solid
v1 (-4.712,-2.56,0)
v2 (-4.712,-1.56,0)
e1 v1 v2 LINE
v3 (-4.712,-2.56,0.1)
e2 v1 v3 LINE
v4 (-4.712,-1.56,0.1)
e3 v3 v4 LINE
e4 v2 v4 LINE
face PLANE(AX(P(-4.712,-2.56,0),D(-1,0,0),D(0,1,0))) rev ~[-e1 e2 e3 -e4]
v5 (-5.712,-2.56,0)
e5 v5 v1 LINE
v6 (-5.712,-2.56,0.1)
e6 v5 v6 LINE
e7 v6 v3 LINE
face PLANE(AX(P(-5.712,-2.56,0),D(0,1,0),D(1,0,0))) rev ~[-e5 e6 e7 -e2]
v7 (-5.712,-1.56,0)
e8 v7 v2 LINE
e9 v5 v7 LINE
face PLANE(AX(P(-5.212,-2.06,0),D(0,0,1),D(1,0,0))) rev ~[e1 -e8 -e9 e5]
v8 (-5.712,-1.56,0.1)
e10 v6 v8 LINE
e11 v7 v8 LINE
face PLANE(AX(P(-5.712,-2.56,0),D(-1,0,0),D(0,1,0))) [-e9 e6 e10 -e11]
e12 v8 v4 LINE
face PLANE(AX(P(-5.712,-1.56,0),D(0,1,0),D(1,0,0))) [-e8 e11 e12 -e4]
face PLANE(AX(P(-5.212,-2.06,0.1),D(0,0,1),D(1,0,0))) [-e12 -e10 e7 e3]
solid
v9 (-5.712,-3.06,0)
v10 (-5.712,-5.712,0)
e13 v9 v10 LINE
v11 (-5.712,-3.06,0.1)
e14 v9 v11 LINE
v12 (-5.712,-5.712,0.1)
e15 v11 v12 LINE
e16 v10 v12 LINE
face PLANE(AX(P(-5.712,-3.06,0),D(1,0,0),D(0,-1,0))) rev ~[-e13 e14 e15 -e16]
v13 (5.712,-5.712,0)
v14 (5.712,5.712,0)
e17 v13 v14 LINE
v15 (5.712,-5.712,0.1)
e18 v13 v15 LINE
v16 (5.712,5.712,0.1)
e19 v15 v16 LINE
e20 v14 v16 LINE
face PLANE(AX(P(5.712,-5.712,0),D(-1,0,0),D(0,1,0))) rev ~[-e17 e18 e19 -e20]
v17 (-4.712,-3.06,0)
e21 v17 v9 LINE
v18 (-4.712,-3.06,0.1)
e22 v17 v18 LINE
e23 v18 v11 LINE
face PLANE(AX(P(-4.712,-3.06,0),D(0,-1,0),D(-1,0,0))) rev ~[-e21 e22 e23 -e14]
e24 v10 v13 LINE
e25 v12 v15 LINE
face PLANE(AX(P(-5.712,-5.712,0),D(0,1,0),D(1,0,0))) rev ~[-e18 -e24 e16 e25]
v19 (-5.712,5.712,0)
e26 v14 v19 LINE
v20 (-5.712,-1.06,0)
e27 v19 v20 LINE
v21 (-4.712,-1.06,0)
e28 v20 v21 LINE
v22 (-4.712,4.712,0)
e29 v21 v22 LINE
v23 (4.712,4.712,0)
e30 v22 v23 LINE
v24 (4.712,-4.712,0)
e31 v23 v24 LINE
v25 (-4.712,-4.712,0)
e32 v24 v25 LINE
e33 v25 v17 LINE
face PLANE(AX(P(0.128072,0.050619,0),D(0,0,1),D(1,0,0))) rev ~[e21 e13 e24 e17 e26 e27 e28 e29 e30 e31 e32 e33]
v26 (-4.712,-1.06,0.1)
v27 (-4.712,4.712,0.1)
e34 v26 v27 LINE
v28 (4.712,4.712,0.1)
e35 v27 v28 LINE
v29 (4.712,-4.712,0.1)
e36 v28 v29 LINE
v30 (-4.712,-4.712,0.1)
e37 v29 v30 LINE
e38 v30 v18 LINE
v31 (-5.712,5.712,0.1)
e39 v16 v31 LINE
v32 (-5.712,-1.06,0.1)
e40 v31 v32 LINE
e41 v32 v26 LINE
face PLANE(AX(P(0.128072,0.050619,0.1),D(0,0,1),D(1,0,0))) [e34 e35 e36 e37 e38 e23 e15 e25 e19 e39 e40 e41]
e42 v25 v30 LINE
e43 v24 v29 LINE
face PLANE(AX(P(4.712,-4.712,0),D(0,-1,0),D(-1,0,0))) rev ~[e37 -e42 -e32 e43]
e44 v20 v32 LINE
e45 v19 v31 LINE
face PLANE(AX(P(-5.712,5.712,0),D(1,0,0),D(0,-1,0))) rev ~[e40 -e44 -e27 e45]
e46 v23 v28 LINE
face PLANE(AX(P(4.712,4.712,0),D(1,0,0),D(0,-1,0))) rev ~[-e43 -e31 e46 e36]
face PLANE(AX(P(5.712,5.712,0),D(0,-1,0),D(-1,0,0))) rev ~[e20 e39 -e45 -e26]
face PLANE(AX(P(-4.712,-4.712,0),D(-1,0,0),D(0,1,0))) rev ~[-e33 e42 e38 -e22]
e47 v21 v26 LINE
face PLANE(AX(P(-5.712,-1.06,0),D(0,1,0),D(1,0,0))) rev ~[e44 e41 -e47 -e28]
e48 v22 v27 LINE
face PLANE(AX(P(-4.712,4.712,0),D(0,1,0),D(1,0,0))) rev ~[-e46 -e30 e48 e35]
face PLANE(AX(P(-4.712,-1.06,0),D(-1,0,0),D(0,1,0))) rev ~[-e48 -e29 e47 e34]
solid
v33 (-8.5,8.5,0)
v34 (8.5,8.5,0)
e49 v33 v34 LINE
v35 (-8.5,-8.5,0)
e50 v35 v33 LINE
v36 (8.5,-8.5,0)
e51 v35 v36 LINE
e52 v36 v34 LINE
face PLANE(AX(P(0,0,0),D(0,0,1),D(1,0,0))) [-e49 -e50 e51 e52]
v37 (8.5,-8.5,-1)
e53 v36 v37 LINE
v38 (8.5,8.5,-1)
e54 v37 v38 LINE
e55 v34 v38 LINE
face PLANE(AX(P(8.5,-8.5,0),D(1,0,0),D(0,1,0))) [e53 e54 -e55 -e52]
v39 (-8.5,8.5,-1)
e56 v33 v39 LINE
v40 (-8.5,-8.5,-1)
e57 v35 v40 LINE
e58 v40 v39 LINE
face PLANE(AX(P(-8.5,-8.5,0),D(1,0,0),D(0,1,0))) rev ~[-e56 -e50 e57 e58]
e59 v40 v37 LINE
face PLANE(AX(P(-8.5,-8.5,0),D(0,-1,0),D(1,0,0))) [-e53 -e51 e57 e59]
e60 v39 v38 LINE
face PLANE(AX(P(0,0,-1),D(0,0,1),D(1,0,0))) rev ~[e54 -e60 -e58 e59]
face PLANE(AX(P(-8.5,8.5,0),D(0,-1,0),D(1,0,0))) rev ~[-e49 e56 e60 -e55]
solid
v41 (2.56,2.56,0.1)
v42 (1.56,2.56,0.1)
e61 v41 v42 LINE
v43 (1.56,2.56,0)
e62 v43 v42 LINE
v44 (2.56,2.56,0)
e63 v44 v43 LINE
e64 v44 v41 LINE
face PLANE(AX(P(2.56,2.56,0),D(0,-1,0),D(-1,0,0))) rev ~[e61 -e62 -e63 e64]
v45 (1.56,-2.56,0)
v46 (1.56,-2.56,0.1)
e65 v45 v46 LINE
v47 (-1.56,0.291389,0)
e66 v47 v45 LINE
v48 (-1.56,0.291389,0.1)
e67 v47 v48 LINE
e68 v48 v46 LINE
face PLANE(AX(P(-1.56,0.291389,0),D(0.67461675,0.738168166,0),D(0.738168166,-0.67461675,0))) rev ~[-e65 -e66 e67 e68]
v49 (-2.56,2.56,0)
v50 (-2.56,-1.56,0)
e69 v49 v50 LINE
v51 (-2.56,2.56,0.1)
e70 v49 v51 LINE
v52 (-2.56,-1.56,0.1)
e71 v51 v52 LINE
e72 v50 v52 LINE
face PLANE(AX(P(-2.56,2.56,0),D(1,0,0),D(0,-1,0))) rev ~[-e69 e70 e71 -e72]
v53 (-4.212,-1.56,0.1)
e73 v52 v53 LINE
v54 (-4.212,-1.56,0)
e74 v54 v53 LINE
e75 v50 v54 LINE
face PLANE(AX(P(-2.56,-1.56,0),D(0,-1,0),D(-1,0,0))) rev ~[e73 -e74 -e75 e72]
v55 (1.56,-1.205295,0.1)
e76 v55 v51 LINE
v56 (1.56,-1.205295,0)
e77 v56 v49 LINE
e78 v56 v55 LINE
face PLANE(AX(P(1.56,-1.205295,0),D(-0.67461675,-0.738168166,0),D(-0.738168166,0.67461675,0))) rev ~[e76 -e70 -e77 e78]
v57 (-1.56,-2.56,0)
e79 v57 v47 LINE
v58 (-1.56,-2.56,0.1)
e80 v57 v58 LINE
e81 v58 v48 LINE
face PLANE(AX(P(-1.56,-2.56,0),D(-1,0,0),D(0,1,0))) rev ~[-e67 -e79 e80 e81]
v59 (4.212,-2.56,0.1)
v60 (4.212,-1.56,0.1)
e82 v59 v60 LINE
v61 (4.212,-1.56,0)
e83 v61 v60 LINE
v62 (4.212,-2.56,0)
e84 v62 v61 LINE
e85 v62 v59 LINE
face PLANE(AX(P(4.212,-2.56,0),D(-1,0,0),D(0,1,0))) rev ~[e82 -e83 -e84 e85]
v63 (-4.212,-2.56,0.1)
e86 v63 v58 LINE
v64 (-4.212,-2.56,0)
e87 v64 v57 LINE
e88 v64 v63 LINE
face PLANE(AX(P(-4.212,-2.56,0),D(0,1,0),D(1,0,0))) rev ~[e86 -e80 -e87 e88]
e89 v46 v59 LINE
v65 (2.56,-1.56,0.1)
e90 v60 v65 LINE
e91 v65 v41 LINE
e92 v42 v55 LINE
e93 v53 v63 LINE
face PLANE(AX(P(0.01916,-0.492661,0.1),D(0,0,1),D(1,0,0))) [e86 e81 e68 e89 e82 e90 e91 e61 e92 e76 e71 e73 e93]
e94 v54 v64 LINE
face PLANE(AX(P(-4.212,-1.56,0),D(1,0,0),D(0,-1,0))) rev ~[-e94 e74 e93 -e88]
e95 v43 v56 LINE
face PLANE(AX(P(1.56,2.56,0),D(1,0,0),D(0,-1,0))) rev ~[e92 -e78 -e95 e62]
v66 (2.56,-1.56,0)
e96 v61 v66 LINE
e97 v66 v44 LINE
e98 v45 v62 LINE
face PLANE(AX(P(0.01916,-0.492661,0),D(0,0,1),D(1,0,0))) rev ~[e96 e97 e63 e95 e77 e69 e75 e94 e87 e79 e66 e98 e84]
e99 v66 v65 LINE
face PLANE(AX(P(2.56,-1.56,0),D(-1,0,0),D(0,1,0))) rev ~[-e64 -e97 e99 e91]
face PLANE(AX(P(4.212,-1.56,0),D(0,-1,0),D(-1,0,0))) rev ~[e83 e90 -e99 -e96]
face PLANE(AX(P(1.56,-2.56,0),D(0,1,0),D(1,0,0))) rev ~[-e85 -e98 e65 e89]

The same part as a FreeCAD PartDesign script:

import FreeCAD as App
import Part
import Sketcher
from FreeCAD import Vector
Q = App.Units.Quantity


def add_polygon(sketch, points):
    """Adds a closed chain of lines whose ends are joined by coincident constraints."""
    first, n = sketch.GeometryCount, len(points)
    for a, b in zip(points, points[1:] + points[:1]):
        sketch.addGeometry(Part.LineSegment(App.Vector(*a, 0), App.Vector(*b, 0)), False)
    for i in range(n):
        sketch.addConstraint(Sketcher.Constraint("Coincident", first + i, 2, first + (i + 1) % n, 1))

doc = App.newDocument("Part")
body = doc.addObject("PartDesign::Body", "Body")

# Sketch on XY plane
sketch1 = body.newObject("Sketcher::SketchObject", "Sketch")
sketch1.AttachmentSupport = (doc.getObject("XY_Plane"), [""])
sketch1.MapMode = "FlatFace"
add_polygon(sketch1, [(5.7, 5.7), (-5.7, 5.7), (-5.7, -1.1), (-4.7, -1.1), (-4.7, 4.7), (4.7, 4.7), (4.7, -4.7), (-4.7, -4.7), (-4.7, -3.1), (-5.7, -3.1), (-5.7, -5.7), (5.7, -5.7)])  # lines 0-11
sketch1.addConstraint(Sketcher.Constraint("Horizontal", 0))
sketch1.addConstraint(Sketcher.Constraint("Vertical", 1))
sketch1.addConstraint(Sketcher.Constraint("Horizontal", 2))
sketch1.addConstraint(Sketcher.Constraint("Vertical", 3))
sketch1.addConstraint(Sketcher.Constraint("Horizontal", 4))
sketch1.addConstraint(Sketcher.Constraint("Vertical", 5))
sketch1.addConstraint(Sketcher.Constraint("Horizontal", 6))
sketch1.addConstraint(Sketcher.Constraint("Vertical", 7))
sketch1.addConstraint(Sketcher.Constraint("Horizontal", 8))
sketch1.addConstraint(Sketcher.Constraint("Vertical", 9))
sketch1.addConstraint(Sketcher.Constraint("Horizontal", 10))
sketch1.addConstraint(Sketcher.Constraint("Vertical", 11))
sketch1.addConstraint(Sketcher.Constraint("Symmetric", 3, 2, 5, 2, -1, 1))
sketch1.addConstraint(Sketcher.Constraint("Symmetric", 0, 2, 10, 2, -1, 1))
sketch1.addConstraint(Sketcher.Constraint("Vertical", 3, 2, 6, 2))
sketch1.addConstraint(Sketcher.Constraint("Vertical", 1, 2, 8, 2))
sketch1.addConstraint(Sketcher.Constraint("Equal", 6, 5))
sketch1.addConstraint(Sketcher.Constraint("Equal", 10, 11))
sketch1.addConstraint(Sketcher.Constraint("DistanceX", 2, 1, 2, 2, Q("1 mm")))
sketch1.addConstraint(Sketcher.Constraint("DistanceY", 7, 2, 2, 2, Q("2 mm")))
sketch1.addConstraint(Sketcher.Constraint("DistanceX", 0, 2, 0, 1, Q("11.424 mm")))
sketch1.addConstraint(Sketcher.Constraint("DistanceY", 1, 2, 1, 1, Q("6.772 mm")))
pad1 = body.newObject("PartDesign::Pad", "Pad")
pad1.Profile = sketch1
pad1.Length = 0.1
body2 = doc.addObject("PartDesign::Body", "Body001")

# Sketch on XY plane
sketch2 = body2.newObject("Sketcher::SketchObject", "Sketch001")
sketch2.AttachmentSupport = (doc.getObject("XY_Plane001"), [""])
sketch2.MapMode = "FlatFace"
add_polygon(sketch2, [(-5.7, -1.6), (-5.7, -2.6), (-4.7, -2.6), (-4.7, -1.6)])  # lines 0-3
sketch2.addConstraint(Sketcher.Constraint("Vertical", 0))
sketch2.addConstraint(Sketcher.Constraint("Horizontal", 1))
sketch2.addConstraint(Sketcher.Constraint("Vertical", 2))
sketch2.addConstraint(Sketcher.Constraint("Horizontal", 3))
sketch2.addConstraint(Sketcher.Constraint("Equal", 3, 0))
sketch2.addConstraint(Sketcher.Constraint("DistanceX", 1, 1, 1, 2, Q("1 mm")))
sketch2.addConstraint(Sketcher.Constraint("DistanceY", 0, 2, -1, 1, Q("2.56 mm")))
sketch2.addConstraint(Sketcher.Constraint("DistanceX", 0, 2, -1, 1, Q("5.712 mm")))
pad2 = body2.newObject("PartDesign::Pad", "Pad001")
pad2.Profile = sketch2
pad2.Length = 0.1
body3 = doc.addObject("PartDesign::Body", "Body002")

# Sketch on XY plane
sketch3 = body3.newObject("Sketcher::SketchObject", "Sketch002")
sketch3.AttachmentSupport = (doc.getObject("XY_Plane002"), [""])
sketch3.MapMode = "FlatFace"
add_polygon(sketch3, [(-4.2, -1.6), (-4.2, -2.6), (-1.6, -2.6), (-1.6, 0.3), (1.6, -2.6), (4.2, -2.6), (4.2, -1.6), (2.6, -1.6), (2.6, 2.6), (1.6, 2.6), (1.6, -1.2), (-2.6, 2.6), (-2.6, -1.6)])  # lines 0-12
sketch3.addConstraint(Sketcher.Constraint("Vertical", 0))
sketch3.addConstraint(Sketcher.Constraint("Horizontal", 1))
sketch3.addConstraint(Sketcher.Constraint("Vertical", 2))
sketch3.addConstraint(Sketcher.Constraint("Horizontal", 4))
sketch3.addConstraint(Sketcher.Constraint("Vertical", 5))
sketch3.addConstraint(Sketcher.Constraint("Horizontal", 6))
sketch3.addConstraint(Sketcher.Constraint("Vertical", 7))
sketch3.addConstraint(Sketcher.Constraint("Horizontal", 8))
sketch3.addConstraint(Sketcher.Constraint("Vertical", 9))
sketch3.addConstraint(Sketcher.Constraint("Vertical", 11))
sketch3.addConstraint(Sketcher.Constraint("Horizontal", 12))
sketch3.addConstraint(Sketcher.Constraint("Symmetric", 1, 2, 8, 2, -1, 1))
sketch3.addConstraint(Sketcher.Constraint("Symmetric", 1, 2, 3, 2, -2))
sketch3.addConstraint(Sketcher.Constraint("Symmetric", 7, 2, 10, 2, -2))
sketch3.addConstraint(Sketcher.Constraint("Symmetric", 5, 2, 12, 2, -2))
sketch3.addConstraint(Sketcher.Constraint("Parallel", 3, 10))
sketch3.addConstraint(Sketcher.Constraint("Equal", 8, 0))
sketch3.addConstraint(Sketcher.Constraint("DistanceX", 8, 2, 8, 1, Q("1 mm")))
sketch3.addConstraint(Sketcher.Constraint("DistanceY", 7, 1, 7, 2, Q("4.12 mm")))
sketch3.addConstraint(Sketcher.Constraint("DistanceX", 1, 1, 1, 2, Q("2.652 mm")))
sketch3.addConstraint(Sketcher.Constraint("DistanceX", 1, 2, -1, 1, Q("1.56 mm")))
sketch3.addConstraint(Sketcher.Constraint("DistanceY", 2, 1, 2, 2, Q("2.851389 mm")))
pad3 = body3.newObject("PartDesign::Pad", "Pad002")
pad3.Profile = sketch3
pad3.Length = 0.1
body4 = doc.addObject("PartDesign::Body", "Body003")

# Sketch on XY plane
sketch4 = body4.newObject("Sketcher::SketchObject", "Sketch003")
sketch4.AttachmentSupport = (doc.getObject("XY_Plane003"), [""])
sketch4.MapMode = "FlatFace"
add_polygon(sketch4, [(-8, 8), (-8, -8), (8, -8), (8, 8)])  # lines 0-3
sketch4.addConstraint(Sketcher.Constraint("Vertical", 0))
sketch4.addConstraint(Sketcher.Constraint("Horizontal", 1))
sketch4.addConstraint(Sketcher.Constraint("Vertical", 2))
sketch4.addConstraint(Sketcher.Constraint("Horizontal", 3))
sketch4.addConstraint(Sketcher.Constraint("Symmetric", 0, 2, 2, 2, -1, 1))
sketch4.addConstraint(Sketcher.Constraint("Equal", 3, 0))
sketch4.addConstraint(Sketcher.Constraint("DistanceX", 1, 1, 1, 2, Q("17 mm")))
pad4 = body4.newObject("PartDesign::Pad", "Pad003")
pad4.Profile = sketch4
pad4.Length = 1
pad4.Reversed = True

doc.recompute()
